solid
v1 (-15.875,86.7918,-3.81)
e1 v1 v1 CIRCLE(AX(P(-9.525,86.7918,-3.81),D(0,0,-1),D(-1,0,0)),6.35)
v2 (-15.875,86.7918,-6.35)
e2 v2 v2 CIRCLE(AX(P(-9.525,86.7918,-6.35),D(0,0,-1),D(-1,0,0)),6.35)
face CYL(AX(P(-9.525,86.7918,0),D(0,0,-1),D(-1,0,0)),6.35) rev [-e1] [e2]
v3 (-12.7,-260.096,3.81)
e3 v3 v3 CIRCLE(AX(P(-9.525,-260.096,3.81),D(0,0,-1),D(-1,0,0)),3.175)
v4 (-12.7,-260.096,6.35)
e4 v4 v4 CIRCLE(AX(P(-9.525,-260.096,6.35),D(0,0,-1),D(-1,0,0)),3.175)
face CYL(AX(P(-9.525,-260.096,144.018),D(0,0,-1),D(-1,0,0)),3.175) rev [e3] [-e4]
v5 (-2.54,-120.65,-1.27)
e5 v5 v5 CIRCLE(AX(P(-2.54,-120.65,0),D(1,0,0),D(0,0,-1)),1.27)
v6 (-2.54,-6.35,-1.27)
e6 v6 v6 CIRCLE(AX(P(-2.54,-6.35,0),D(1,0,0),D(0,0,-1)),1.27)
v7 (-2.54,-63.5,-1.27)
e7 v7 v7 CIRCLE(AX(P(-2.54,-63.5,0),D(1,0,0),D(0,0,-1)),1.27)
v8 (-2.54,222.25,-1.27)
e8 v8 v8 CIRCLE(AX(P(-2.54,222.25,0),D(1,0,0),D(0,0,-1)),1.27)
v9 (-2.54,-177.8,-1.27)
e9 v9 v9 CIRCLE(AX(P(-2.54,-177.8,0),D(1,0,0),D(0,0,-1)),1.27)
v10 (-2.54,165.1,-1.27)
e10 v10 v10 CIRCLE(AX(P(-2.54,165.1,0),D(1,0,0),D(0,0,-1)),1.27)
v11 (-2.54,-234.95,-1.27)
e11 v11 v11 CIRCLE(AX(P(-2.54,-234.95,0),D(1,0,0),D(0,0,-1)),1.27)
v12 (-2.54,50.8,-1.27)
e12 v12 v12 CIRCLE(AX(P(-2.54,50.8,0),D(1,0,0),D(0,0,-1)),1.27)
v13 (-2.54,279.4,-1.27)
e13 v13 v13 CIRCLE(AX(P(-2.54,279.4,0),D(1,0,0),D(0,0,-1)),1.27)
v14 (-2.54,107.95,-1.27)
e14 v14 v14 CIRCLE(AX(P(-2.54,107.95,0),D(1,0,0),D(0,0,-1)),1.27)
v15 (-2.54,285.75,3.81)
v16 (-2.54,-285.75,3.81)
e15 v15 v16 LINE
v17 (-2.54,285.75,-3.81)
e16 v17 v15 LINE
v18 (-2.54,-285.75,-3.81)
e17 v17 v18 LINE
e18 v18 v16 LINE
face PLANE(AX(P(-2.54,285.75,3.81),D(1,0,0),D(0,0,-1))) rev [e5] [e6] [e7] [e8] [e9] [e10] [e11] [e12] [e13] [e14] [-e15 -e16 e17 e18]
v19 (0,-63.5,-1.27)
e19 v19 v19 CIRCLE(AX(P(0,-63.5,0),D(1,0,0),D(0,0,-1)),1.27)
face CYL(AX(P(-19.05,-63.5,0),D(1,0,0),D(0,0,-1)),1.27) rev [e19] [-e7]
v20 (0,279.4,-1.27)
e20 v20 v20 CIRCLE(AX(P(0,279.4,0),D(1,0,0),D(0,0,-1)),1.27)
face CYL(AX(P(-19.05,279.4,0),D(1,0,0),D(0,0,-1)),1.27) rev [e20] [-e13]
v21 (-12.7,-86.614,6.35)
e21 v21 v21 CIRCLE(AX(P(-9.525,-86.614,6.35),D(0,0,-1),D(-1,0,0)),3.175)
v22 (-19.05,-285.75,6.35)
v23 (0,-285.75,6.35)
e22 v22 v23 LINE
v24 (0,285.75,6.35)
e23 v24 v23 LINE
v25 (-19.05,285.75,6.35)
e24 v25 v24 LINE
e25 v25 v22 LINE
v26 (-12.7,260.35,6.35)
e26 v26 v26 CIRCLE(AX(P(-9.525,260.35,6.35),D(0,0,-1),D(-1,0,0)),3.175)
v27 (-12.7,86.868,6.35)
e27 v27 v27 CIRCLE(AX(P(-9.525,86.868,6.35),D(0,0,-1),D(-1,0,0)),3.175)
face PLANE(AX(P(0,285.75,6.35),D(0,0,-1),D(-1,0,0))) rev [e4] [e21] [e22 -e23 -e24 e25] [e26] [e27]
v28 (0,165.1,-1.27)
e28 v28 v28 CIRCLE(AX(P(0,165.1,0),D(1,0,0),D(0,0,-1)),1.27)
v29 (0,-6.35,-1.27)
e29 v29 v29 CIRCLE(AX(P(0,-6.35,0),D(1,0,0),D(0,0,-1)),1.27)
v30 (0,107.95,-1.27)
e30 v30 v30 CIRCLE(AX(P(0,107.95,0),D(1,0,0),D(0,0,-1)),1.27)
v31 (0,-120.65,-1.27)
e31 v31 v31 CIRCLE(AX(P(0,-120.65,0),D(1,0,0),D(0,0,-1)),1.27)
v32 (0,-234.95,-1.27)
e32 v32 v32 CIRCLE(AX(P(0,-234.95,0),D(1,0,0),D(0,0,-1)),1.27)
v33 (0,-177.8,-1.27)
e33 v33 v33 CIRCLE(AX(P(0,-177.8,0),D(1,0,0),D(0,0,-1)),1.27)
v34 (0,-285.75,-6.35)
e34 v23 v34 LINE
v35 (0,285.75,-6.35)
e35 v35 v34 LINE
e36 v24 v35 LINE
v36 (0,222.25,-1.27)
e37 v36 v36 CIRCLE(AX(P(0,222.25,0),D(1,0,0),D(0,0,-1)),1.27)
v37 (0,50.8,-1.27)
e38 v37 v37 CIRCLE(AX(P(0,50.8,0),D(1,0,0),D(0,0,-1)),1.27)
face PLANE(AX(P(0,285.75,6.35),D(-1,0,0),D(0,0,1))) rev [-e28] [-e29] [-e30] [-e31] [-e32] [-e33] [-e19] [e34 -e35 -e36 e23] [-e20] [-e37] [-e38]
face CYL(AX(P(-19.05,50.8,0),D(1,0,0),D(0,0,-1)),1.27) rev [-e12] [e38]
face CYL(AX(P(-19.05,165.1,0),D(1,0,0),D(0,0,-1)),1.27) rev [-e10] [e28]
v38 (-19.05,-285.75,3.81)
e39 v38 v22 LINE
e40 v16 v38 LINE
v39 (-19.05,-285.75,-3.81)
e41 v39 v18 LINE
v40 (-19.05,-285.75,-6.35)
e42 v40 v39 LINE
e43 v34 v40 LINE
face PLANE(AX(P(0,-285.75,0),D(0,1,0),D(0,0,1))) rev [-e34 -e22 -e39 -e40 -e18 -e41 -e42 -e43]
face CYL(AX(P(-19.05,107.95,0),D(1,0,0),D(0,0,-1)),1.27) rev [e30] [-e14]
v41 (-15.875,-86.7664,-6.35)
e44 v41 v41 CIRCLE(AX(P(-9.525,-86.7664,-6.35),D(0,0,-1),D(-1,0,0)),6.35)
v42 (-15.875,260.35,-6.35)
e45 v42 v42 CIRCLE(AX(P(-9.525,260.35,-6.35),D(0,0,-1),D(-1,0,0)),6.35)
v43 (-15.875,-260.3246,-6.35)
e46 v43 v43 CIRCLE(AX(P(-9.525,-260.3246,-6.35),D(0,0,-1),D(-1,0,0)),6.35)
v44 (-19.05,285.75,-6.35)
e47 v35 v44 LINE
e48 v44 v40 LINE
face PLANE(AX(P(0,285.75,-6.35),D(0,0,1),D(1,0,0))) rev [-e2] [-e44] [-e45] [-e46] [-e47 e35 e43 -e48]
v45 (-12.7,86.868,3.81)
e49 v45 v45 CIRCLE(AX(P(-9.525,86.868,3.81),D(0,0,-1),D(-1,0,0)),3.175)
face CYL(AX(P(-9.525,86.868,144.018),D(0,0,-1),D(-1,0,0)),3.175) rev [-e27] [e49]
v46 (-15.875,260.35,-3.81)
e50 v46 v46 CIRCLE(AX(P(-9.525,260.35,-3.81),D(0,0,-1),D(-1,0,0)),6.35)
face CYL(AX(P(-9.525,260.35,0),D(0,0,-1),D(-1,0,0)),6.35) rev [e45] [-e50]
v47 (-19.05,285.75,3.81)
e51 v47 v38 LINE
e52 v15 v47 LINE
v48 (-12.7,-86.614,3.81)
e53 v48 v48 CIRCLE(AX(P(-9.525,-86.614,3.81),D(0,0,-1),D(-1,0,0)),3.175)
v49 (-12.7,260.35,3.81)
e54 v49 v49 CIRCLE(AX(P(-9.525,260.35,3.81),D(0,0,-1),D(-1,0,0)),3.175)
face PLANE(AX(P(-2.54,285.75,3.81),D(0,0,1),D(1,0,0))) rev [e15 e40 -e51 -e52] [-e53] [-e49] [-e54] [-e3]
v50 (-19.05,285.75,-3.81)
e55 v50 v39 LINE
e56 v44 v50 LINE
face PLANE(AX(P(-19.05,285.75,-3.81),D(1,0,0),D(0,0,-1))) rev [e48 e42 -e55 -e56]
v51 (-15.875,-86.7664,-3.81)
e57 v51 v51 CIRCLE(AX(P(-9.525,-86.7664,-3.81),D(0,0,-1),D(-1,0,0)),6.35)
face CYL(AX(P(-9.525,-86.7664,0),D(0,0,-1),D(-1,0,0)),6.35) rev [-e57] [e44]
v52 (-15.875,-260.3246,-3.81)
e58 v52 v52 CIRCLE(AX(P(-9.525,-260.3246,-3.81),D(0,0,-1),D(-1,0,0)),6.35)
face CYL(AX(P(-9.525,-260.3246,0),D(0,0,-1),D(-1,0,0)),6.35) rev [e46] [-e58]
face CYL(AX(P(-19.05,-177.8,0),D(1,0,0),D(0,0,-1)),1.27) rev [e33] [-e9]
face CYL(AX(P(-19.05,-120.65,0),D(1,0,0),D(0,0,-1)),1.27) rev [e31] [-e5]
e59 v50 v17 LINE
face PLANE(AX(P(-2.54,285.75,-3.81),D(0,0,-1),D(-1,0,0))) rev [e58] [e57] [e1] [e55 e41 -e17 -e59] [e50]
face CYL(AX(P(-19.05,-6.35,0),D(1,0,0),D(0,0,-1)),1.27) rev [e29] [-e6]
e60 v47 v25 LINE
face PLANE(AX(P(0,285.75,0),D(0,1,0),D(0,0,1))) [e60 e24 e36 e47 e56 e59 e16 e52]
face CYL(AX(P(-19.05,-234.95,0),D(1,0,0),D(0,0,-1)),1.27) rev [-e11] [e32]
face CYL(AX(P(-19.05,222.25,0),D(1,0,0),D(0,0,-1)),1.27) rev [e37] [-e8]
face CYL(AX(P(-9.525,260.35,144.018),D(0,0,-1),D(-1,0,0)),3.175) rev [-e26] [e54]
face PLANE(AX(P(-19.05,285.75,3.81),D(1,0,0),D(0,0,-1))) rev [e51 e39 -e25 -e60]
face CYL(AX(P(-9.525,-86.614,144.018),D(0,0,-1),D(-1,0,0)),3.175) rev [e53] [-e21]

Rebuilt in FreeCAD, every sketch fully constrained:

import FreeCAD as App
import Part
import Sketcher

V = App.Vector
Q = App.Units.Quantity

doc = App.newDocument("Part")
body = doc.addObject("PartDesign::Body", "Body")

# Sketch on XZ plane
sketch1 = body.newObject("Sketcher::SketchObject", "Sketch")
sketch1.AttachmentSupport = (doc.getObject("XZ_Plane"), [""])
sketch1.MapMode = "FlatFace"
sketch1.addGeometry([
    Part.LineSegment(V(-19.1, -6.3, 0), V(-19.1, -3.8, 0)),  # 0
    Part.LineSegment(V(-19.1, -3.8, 0), V(-2.5, -3.8, 0)),  # 1
    Part.LineSegment(V(-2.5, -3.8, 0), V(-2.5, 3.8, 0)),  # 2
    Part.LineSegment(V(-2.5, 3.8, 0), V(-19.1, 3.8, 0)),  # 3
    Part.LineSegment(V(-19.1, 3.8, 0), V(-19.1, 6.3, 0)),  # 4
    Part.LineSegment(V(-19.1, 6.3, 0), V(0, 6.3, 0)),  # 5
    Part.LineSegment(V(0, 6.3, 0), V(0, -6.3, 0)),  # 6
    Part.LineSegment(V(0, -6.3, 0), V(-19.1, -6.3, 0)),  # 7
], False)
sketch1.addConstraint([
    Sketcher.Constraint("Coincident", 0, 2, 1, 1),
    Sketcher.Constraint("Coincident", 1, 2, 2, 1),
    Sketcher.Constraint("Coincident", 2, 2, 3, 1),
    Sketcher.Constraint("Coincident", 3, 2, 4, 1),
    Sketcher.Constraint("Coincident", 4, 2, 5, 1),
    Sketcher.Constraint("Coincident", 5, 2, 6, 1),
    Sketcher.Constraint("Coincident", 6, 2, 7, 1),
    Sketcher.Constraint("Coincident", 7, 2, 0, 1),
    Sketcher.Constraint("Vertical", 0),
    Sketcher.Constraint("Horizontal", 1),
    Sketcher.Constraint("Vertical", 2),
    Sketcher.Constraint("Horizontal", 3),
    Sketcher.Constraint("Vertical", 4),
    Sketcher.Constraint("Horizontal", 5),
    Sketcher.Constraint("Vertical", 6),
    Sketcher.Constraint("Horizontal", 7),
    Sketcher.Constraint("Symmetric", 5, 2, 6, 2, -1, 1),
    Sketcher.Constraint("Symmetric", 0, 2, 3, 2, -1),
    Sketcher.Constraint("DistanceY", 0, 1, 0, 2, Q("0.1 in")),
    Sketcher.Constraint("DistanceY", 2, 1, 2, 2, Q("0.3 in")),
    Sketcher.Constraint("DistanceX", 1, 1, 1, 2, Q("0.65 in")),
    Sketcher.Constraint("DistanceX", 5, 1, 5, 2, Q("0.75 in")),
])
pad1 = body.newObject("PartDesign::Pad", "Pad")
pad1.Profile = sketch1
pad1.Length = Q("22.5 in")
pad1.Midplane = True

# Sketch on YZ plane
sketch2 = body.newObject("Sketcher::SketchObject", "Sketch001")
sketch2.AttachmentSupport = (doc.getObject("YZ_Plane"), [""])
sketch2.MapMode = "FlatFace"
sketch2.addGeometry([
    Part.Circle(V(279.4, 0, 0), V(0, 0, 1), 1.3),  # 0
    Part.Circle(V(222.2, 0, 0), V(0, 0, 1), 1.3),  # 1
    Part.Circle(V(165.1, 0, 0), V(0, 0, 1), 1.3),  # 2
    Part.Circle(V(108, 0, 0), V(0, 0, 1), 1.3),  # 3
    Part.Circle(V(50.8, 0, 0), V(0, 0, 1), 1.3),  # 4
    Part.Circle(V(-6.3, 0, 0), V(0, 0, 1), 1.3),  # 5
    Part.Circle(V(-63.5, 0, 0), V(0, 0, 1), 1.3),  # 6
    Part.Circle(V(-120.7, 0, 0), V(0, 0, 1), 1.3),  # 7
    Part.Circle(V(-177.8, 0, 0), V(0, 0, 1), 1.3),  # 8
    Part.Circle(V(-234.9, 0, 0), V(0, 0, 1), 1.3),  # 9
], False)
sketch2.addConstraint([
    Sketcher.Constraint("Equal", 0, 1),
    Sketcher.Constraint("Equal", 1, 2),
    Sketcher.Constraint("Equal", 2, 3),
    Sketcher.Constraint("Equal", 3, 4),
    Sketcher.Constraint("Equal", 4, 5),
    Sketcher.Constraint("Equal", 5, 6),
    Sketcher.Constraint("Equal", 6, 7),
    Sketcher.Constraint("Equal", 7, 8),
    Sketcher.Constraint("Equal", 8, 9),
    Sketcher.Constraint("PointOnObject", 0, 3, -1),
    Sketcher.Constraint("PointOnObject", 1, 3, -1),
    Sketcher.Constraint("PointOnObject", 2, 3, -1),
    Sketcher.Constraint("PointOnObject", 3, 3, -1),
    Sketcher.Constraint("PointOnObject", 4, 3, -1),
    Sketcher.Constraint("PointOnObject", 5, 3, -1),
    Sketcher.Constraint("PointOnObject", 6, 3, -1),
    Sketcher.Constraint("PointOnObject", 7, 3, -1),
    Sketcher.Constraint("PointOnObject", 8, 3, -1),
    Sketcher.Constraint("PointOnObject", 9, 3, -1),
    Sketcher.Constraint("Diameter", 0, Q("0.1 in")),
    Sketcher.Constraint("DistanceX", -1, 1, 0, 3, Q("11 in")),
    Sketcher.Constraint("DistanceX", -1, 1, 4, 3, Q("2 in")),
    Sketcher.Constraint("DistanceX", 8, 3, -1, 1, Q("7 in")),
    Sketcher.Constraint("DistanceX", 5, 3, 1, 3, Q("9 in")),
    Sketcher.Constraint("DistanceX", 6, 3, 2, 3, Q("9 in")),
    Sketcher.Constraint("DistanceX", 7, 3, 3, 3, Q("9 in")),
    Sketcher.Constraint("DistanceX", 9, 3, 5, 3, Q("9 in")),
    Sketcher.Constraint("DistanceX", -1, 1, 2, 3, Q("6.5 in")),
    Sketcher.Constraint("DistanceX", 3, 3, 1, 3, Q("4.5 in")),
    Sketcher.Constraint("DistanceX", -1, 1, 1, 3, Q("8.75 in")),
])
pocket1 = body.newObject("PartDesign::Pocket", "Pocket")
pocket1.Profile = sketch2
pocket1.Type = "ThroughAll"

# Sketch on XY plane
sketch3 = body.newObject("Sketcher::SketchObject", "Sketch002")
sketch3.AttachmentSupport = (doc.getObject("XY_Plane"), [""])
sketch3.MapMode = "FlatFace"
sketch3.AttachmentOffset = App.Placement(V(0, 0, 0.15 * 25.4), App.Rotation())
sketch3.addGeometry([
    Part.Circle(V(-9.5, 260.4, 0), V(0, 0, 1), 3.2),
    Part.Circle(V(-9.5, 86.9, 0), V(0, 0, 1), 3.2),
    Part.Circle(V(-9.5, -86.6, 0), V(0, 0, 1), 3.2),
    Part.Circle(V(-9.5, -260.1, 0), V(0, 0, 1), 3.2),
], False)
sketch3.addConstraint([
    Sketcher.Constraint("Equal", 0, 1),
    Sketcher.Constraint("Equal", 1, 2),
    Sketcher.Constraint("Equal", 2, 3),
    Sketcher.Constraint("Vertical", 0, 3, 1, 3),
    Sketcher.Constraint("Vertical", 1, 3, 2, 3),
    Sketcher.Constraint("Vertical", 2, 3, 3, 3),
    Sketcher.Constraint("Diameter", 0, Q("0.25 in")),
    Sketcher.Constraint("DistanceY", -1, 1, 0, 3, Q("10.25 in")),
    Sketcher.Constraint("DistanceY", -1, 1, 1, 3, Q("3.42 in")),
    Sketcher.Constraint("DistanceY", 2, 3, -1, 1, Q("3.41 in")),
    Sketcher.Constraint("DistanceY", 3, 3, -1, 1, Q("10.24 in")),
    Sketcher.Constraint("DistanceX", 0, 3, -1, 1, Q("0.375 in")),
])
pocket2 = body.newObject("PartDesign::Pocket", "Pocket001")
pocket2.Profile = sketch3
pocket2.Length = Q("5.52 in")
pocket2.Reversed = True

# Sketch on XY plane
sketch4 = body.newObject("Sketcher::SketchObject", "Sketch003")
sketch4.AttachmentSupport = (doc.getObject("XY_Plane"), [""])
sketch4.MapMode = "FlatFace"
sketch4.AttachmentOffset = App.Placement(V(0, 0, -0.25 * 25.4), App.Rotation())
sketch4.addGeometry([
    Part.Circle(V(-10, 260, 0), V(0, 0, 1), 6),
    Part.Circle(V(-10, 87, 0), V(0, 0, 1), 6),
    Part.Circle(V(-10, -87, 0), V(0, 0, 1), 6),
    Part.Circle(V(-10, -260, 0), V(0, 0, 1), 6),
], False)
sketch4.addConstraint([
    Sketcher.Constraint("Equal", 0, 1),
    Sketcher.Constraint("Equal", 1, 2),
    Sketcher.Constraint("Equal", 2, 3),
    Sketcher.Constraint("Vertical", 0, 3, 1, 3),
    Sketcher.Constraint("Vertical", 1, 3, 2, 3),
    Sketcher.Constraint("Vertical", 2, 3, 3, 3),
    Sketcher.Constraint("Diameter", 0, Q("0.5 in")),
    Sketcher.Constraint("DistanceY", -1, 1, 0, 3, Q("10.25 in")),
    Sketcher.Constraint("DistanceX", 0, 3, -1, 1, Q("0.375 in")),
    Sketcher.Constraint("DistanceY", -1, 1, 1, 3, Q("3.417 in")),
    Sketcher.Constraint("DistanceY", 2, 3, -1, 1, Q("3.416 in")),
    Sketcher.Constraint("DistanceY", 3, 3, -1, 1, Q("10.249 in")),
])
pocket3 = body.newObject("PartDesign::Pocket", "Pocket002")
pocket3.Profile = sketch4
pocket3.Length = Q("0.1 in")
pocket3.Reversed = True

doc.recompute()
